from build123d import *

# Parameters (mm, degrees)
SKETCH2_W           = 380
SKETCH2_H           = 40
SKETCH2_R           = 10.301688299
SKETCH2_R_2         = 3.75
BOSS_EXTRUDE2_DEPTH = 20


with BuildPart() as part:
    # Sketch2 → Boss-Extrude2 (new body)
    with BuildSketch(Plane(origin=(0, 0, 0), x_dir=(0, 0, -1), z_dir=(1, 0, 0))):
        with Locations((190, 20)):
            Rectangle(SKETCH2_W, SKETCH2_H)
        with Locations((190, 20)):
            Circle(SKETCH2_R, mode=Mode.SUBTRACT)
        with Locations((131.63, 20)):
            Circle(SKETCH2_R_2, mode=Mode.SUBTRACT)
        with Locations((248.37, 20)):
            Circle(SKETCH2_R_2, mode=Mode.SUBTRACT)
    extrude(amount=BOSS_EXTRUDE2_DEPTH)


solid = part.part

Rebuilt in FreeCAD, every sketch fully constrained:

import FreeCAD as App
import Part
import Sketcher
from FreeCAD import Vector
Q = App.Units.Quantity


def add_polygon(sketch, points):
    """Adds a closed chain of lines whose ends are joined by coincident constraints."""
    first, n = sketch.GeometryCount, len(points)
    for a, b in zip(points, points[1:] + points[:1]):
        sketch.addGeometry(Part.LineSegment(App.Vector(*a, 0), App.Vector(*b, 0)), False)
    for i in range(n):
        sketch.addConstraint(Sketcher.Constraint("Coincident", first + i, 2, first + (i + 1) % n, 1))

doc = App.newDocument("Part")
body = doc.addObject("PartDesign::Body", "Body")

# Sketch on YZ plane
sketch1 = body.newObject("Sketcher::SketchObject", "Sketch")
sketch1.AttachmentSupport = (doc.getObject("YZ_Plane"), [""])
sketch1.MapMode = "FlatFace"
add_polygon(sketch1, [(40, 0), (0, 0), (0, -380), (40, -380)])  # lines 0-3
sketch1.addGeometry(Part.Circle(Vector(20, -131.63, 0), Vector(0, 0, 1), 3.75), False)  # 4
sketch1.addGeometry(Part.Circle(Vector(20, -190, 0), Vector(0, 0, 1), 10.301688), False)  # 5
sketch1.addGeometry(Part.Circle(Vector(20, -248.37, 0), Vector(0, 0, 1), 3.75), False)  # 6
sketch1.addConstraint([
    Sketcher.Constraint("Horizontal", 0),
    Sketcher.Constraint("Vertical", 1),
    Sketcher.Constraint("Horizontal", 2),
    Sketcher.Constraint("Vertical", 3),
    Sketcher.Constraint("Coincident", 0, 2, -1, 1),
    Sketcher.Constraint("Equal", 4, 6),
    Sketcher.Constraint("Vertical", 4, 3, 5, 3),
    Sketcher.Constraint("Vertical", 5, 3, 6, 3),
    Sketcher.Constraint("Diameter", 4, Q("7.5 mm")),
    Sketcher.Constraint("DistanceX", 0, 2, 0, 1, Q("40 mm")),
    Sketcher.Constraint("DistanceY", 1, 2, 1, 1, Q("380 mm")),
    Sketcher.Constraint("DistanceX", -1, 1, 4, 3, Q("20 mm")),
    Sketcher.Constraint("DistanceY", 5, 3, -1, 1, Q("190 mm")),
    Sketcher.Constraint("DistanceY", 4, 3, -1, 1, Q("131.63 mm")),
    Sketcher.Constraint("DistanceY", 6, 3, -1, 1, Q("248.37 mm")),
    Sketcher.Constraint("Diameter", 5, Q("20.603377 mm")),
])
pad1 = body.newObject("PartDesign::Pad", "Pad")
pad1.Profile = sketch1
pad1.Length = 20

doc.recompute()
